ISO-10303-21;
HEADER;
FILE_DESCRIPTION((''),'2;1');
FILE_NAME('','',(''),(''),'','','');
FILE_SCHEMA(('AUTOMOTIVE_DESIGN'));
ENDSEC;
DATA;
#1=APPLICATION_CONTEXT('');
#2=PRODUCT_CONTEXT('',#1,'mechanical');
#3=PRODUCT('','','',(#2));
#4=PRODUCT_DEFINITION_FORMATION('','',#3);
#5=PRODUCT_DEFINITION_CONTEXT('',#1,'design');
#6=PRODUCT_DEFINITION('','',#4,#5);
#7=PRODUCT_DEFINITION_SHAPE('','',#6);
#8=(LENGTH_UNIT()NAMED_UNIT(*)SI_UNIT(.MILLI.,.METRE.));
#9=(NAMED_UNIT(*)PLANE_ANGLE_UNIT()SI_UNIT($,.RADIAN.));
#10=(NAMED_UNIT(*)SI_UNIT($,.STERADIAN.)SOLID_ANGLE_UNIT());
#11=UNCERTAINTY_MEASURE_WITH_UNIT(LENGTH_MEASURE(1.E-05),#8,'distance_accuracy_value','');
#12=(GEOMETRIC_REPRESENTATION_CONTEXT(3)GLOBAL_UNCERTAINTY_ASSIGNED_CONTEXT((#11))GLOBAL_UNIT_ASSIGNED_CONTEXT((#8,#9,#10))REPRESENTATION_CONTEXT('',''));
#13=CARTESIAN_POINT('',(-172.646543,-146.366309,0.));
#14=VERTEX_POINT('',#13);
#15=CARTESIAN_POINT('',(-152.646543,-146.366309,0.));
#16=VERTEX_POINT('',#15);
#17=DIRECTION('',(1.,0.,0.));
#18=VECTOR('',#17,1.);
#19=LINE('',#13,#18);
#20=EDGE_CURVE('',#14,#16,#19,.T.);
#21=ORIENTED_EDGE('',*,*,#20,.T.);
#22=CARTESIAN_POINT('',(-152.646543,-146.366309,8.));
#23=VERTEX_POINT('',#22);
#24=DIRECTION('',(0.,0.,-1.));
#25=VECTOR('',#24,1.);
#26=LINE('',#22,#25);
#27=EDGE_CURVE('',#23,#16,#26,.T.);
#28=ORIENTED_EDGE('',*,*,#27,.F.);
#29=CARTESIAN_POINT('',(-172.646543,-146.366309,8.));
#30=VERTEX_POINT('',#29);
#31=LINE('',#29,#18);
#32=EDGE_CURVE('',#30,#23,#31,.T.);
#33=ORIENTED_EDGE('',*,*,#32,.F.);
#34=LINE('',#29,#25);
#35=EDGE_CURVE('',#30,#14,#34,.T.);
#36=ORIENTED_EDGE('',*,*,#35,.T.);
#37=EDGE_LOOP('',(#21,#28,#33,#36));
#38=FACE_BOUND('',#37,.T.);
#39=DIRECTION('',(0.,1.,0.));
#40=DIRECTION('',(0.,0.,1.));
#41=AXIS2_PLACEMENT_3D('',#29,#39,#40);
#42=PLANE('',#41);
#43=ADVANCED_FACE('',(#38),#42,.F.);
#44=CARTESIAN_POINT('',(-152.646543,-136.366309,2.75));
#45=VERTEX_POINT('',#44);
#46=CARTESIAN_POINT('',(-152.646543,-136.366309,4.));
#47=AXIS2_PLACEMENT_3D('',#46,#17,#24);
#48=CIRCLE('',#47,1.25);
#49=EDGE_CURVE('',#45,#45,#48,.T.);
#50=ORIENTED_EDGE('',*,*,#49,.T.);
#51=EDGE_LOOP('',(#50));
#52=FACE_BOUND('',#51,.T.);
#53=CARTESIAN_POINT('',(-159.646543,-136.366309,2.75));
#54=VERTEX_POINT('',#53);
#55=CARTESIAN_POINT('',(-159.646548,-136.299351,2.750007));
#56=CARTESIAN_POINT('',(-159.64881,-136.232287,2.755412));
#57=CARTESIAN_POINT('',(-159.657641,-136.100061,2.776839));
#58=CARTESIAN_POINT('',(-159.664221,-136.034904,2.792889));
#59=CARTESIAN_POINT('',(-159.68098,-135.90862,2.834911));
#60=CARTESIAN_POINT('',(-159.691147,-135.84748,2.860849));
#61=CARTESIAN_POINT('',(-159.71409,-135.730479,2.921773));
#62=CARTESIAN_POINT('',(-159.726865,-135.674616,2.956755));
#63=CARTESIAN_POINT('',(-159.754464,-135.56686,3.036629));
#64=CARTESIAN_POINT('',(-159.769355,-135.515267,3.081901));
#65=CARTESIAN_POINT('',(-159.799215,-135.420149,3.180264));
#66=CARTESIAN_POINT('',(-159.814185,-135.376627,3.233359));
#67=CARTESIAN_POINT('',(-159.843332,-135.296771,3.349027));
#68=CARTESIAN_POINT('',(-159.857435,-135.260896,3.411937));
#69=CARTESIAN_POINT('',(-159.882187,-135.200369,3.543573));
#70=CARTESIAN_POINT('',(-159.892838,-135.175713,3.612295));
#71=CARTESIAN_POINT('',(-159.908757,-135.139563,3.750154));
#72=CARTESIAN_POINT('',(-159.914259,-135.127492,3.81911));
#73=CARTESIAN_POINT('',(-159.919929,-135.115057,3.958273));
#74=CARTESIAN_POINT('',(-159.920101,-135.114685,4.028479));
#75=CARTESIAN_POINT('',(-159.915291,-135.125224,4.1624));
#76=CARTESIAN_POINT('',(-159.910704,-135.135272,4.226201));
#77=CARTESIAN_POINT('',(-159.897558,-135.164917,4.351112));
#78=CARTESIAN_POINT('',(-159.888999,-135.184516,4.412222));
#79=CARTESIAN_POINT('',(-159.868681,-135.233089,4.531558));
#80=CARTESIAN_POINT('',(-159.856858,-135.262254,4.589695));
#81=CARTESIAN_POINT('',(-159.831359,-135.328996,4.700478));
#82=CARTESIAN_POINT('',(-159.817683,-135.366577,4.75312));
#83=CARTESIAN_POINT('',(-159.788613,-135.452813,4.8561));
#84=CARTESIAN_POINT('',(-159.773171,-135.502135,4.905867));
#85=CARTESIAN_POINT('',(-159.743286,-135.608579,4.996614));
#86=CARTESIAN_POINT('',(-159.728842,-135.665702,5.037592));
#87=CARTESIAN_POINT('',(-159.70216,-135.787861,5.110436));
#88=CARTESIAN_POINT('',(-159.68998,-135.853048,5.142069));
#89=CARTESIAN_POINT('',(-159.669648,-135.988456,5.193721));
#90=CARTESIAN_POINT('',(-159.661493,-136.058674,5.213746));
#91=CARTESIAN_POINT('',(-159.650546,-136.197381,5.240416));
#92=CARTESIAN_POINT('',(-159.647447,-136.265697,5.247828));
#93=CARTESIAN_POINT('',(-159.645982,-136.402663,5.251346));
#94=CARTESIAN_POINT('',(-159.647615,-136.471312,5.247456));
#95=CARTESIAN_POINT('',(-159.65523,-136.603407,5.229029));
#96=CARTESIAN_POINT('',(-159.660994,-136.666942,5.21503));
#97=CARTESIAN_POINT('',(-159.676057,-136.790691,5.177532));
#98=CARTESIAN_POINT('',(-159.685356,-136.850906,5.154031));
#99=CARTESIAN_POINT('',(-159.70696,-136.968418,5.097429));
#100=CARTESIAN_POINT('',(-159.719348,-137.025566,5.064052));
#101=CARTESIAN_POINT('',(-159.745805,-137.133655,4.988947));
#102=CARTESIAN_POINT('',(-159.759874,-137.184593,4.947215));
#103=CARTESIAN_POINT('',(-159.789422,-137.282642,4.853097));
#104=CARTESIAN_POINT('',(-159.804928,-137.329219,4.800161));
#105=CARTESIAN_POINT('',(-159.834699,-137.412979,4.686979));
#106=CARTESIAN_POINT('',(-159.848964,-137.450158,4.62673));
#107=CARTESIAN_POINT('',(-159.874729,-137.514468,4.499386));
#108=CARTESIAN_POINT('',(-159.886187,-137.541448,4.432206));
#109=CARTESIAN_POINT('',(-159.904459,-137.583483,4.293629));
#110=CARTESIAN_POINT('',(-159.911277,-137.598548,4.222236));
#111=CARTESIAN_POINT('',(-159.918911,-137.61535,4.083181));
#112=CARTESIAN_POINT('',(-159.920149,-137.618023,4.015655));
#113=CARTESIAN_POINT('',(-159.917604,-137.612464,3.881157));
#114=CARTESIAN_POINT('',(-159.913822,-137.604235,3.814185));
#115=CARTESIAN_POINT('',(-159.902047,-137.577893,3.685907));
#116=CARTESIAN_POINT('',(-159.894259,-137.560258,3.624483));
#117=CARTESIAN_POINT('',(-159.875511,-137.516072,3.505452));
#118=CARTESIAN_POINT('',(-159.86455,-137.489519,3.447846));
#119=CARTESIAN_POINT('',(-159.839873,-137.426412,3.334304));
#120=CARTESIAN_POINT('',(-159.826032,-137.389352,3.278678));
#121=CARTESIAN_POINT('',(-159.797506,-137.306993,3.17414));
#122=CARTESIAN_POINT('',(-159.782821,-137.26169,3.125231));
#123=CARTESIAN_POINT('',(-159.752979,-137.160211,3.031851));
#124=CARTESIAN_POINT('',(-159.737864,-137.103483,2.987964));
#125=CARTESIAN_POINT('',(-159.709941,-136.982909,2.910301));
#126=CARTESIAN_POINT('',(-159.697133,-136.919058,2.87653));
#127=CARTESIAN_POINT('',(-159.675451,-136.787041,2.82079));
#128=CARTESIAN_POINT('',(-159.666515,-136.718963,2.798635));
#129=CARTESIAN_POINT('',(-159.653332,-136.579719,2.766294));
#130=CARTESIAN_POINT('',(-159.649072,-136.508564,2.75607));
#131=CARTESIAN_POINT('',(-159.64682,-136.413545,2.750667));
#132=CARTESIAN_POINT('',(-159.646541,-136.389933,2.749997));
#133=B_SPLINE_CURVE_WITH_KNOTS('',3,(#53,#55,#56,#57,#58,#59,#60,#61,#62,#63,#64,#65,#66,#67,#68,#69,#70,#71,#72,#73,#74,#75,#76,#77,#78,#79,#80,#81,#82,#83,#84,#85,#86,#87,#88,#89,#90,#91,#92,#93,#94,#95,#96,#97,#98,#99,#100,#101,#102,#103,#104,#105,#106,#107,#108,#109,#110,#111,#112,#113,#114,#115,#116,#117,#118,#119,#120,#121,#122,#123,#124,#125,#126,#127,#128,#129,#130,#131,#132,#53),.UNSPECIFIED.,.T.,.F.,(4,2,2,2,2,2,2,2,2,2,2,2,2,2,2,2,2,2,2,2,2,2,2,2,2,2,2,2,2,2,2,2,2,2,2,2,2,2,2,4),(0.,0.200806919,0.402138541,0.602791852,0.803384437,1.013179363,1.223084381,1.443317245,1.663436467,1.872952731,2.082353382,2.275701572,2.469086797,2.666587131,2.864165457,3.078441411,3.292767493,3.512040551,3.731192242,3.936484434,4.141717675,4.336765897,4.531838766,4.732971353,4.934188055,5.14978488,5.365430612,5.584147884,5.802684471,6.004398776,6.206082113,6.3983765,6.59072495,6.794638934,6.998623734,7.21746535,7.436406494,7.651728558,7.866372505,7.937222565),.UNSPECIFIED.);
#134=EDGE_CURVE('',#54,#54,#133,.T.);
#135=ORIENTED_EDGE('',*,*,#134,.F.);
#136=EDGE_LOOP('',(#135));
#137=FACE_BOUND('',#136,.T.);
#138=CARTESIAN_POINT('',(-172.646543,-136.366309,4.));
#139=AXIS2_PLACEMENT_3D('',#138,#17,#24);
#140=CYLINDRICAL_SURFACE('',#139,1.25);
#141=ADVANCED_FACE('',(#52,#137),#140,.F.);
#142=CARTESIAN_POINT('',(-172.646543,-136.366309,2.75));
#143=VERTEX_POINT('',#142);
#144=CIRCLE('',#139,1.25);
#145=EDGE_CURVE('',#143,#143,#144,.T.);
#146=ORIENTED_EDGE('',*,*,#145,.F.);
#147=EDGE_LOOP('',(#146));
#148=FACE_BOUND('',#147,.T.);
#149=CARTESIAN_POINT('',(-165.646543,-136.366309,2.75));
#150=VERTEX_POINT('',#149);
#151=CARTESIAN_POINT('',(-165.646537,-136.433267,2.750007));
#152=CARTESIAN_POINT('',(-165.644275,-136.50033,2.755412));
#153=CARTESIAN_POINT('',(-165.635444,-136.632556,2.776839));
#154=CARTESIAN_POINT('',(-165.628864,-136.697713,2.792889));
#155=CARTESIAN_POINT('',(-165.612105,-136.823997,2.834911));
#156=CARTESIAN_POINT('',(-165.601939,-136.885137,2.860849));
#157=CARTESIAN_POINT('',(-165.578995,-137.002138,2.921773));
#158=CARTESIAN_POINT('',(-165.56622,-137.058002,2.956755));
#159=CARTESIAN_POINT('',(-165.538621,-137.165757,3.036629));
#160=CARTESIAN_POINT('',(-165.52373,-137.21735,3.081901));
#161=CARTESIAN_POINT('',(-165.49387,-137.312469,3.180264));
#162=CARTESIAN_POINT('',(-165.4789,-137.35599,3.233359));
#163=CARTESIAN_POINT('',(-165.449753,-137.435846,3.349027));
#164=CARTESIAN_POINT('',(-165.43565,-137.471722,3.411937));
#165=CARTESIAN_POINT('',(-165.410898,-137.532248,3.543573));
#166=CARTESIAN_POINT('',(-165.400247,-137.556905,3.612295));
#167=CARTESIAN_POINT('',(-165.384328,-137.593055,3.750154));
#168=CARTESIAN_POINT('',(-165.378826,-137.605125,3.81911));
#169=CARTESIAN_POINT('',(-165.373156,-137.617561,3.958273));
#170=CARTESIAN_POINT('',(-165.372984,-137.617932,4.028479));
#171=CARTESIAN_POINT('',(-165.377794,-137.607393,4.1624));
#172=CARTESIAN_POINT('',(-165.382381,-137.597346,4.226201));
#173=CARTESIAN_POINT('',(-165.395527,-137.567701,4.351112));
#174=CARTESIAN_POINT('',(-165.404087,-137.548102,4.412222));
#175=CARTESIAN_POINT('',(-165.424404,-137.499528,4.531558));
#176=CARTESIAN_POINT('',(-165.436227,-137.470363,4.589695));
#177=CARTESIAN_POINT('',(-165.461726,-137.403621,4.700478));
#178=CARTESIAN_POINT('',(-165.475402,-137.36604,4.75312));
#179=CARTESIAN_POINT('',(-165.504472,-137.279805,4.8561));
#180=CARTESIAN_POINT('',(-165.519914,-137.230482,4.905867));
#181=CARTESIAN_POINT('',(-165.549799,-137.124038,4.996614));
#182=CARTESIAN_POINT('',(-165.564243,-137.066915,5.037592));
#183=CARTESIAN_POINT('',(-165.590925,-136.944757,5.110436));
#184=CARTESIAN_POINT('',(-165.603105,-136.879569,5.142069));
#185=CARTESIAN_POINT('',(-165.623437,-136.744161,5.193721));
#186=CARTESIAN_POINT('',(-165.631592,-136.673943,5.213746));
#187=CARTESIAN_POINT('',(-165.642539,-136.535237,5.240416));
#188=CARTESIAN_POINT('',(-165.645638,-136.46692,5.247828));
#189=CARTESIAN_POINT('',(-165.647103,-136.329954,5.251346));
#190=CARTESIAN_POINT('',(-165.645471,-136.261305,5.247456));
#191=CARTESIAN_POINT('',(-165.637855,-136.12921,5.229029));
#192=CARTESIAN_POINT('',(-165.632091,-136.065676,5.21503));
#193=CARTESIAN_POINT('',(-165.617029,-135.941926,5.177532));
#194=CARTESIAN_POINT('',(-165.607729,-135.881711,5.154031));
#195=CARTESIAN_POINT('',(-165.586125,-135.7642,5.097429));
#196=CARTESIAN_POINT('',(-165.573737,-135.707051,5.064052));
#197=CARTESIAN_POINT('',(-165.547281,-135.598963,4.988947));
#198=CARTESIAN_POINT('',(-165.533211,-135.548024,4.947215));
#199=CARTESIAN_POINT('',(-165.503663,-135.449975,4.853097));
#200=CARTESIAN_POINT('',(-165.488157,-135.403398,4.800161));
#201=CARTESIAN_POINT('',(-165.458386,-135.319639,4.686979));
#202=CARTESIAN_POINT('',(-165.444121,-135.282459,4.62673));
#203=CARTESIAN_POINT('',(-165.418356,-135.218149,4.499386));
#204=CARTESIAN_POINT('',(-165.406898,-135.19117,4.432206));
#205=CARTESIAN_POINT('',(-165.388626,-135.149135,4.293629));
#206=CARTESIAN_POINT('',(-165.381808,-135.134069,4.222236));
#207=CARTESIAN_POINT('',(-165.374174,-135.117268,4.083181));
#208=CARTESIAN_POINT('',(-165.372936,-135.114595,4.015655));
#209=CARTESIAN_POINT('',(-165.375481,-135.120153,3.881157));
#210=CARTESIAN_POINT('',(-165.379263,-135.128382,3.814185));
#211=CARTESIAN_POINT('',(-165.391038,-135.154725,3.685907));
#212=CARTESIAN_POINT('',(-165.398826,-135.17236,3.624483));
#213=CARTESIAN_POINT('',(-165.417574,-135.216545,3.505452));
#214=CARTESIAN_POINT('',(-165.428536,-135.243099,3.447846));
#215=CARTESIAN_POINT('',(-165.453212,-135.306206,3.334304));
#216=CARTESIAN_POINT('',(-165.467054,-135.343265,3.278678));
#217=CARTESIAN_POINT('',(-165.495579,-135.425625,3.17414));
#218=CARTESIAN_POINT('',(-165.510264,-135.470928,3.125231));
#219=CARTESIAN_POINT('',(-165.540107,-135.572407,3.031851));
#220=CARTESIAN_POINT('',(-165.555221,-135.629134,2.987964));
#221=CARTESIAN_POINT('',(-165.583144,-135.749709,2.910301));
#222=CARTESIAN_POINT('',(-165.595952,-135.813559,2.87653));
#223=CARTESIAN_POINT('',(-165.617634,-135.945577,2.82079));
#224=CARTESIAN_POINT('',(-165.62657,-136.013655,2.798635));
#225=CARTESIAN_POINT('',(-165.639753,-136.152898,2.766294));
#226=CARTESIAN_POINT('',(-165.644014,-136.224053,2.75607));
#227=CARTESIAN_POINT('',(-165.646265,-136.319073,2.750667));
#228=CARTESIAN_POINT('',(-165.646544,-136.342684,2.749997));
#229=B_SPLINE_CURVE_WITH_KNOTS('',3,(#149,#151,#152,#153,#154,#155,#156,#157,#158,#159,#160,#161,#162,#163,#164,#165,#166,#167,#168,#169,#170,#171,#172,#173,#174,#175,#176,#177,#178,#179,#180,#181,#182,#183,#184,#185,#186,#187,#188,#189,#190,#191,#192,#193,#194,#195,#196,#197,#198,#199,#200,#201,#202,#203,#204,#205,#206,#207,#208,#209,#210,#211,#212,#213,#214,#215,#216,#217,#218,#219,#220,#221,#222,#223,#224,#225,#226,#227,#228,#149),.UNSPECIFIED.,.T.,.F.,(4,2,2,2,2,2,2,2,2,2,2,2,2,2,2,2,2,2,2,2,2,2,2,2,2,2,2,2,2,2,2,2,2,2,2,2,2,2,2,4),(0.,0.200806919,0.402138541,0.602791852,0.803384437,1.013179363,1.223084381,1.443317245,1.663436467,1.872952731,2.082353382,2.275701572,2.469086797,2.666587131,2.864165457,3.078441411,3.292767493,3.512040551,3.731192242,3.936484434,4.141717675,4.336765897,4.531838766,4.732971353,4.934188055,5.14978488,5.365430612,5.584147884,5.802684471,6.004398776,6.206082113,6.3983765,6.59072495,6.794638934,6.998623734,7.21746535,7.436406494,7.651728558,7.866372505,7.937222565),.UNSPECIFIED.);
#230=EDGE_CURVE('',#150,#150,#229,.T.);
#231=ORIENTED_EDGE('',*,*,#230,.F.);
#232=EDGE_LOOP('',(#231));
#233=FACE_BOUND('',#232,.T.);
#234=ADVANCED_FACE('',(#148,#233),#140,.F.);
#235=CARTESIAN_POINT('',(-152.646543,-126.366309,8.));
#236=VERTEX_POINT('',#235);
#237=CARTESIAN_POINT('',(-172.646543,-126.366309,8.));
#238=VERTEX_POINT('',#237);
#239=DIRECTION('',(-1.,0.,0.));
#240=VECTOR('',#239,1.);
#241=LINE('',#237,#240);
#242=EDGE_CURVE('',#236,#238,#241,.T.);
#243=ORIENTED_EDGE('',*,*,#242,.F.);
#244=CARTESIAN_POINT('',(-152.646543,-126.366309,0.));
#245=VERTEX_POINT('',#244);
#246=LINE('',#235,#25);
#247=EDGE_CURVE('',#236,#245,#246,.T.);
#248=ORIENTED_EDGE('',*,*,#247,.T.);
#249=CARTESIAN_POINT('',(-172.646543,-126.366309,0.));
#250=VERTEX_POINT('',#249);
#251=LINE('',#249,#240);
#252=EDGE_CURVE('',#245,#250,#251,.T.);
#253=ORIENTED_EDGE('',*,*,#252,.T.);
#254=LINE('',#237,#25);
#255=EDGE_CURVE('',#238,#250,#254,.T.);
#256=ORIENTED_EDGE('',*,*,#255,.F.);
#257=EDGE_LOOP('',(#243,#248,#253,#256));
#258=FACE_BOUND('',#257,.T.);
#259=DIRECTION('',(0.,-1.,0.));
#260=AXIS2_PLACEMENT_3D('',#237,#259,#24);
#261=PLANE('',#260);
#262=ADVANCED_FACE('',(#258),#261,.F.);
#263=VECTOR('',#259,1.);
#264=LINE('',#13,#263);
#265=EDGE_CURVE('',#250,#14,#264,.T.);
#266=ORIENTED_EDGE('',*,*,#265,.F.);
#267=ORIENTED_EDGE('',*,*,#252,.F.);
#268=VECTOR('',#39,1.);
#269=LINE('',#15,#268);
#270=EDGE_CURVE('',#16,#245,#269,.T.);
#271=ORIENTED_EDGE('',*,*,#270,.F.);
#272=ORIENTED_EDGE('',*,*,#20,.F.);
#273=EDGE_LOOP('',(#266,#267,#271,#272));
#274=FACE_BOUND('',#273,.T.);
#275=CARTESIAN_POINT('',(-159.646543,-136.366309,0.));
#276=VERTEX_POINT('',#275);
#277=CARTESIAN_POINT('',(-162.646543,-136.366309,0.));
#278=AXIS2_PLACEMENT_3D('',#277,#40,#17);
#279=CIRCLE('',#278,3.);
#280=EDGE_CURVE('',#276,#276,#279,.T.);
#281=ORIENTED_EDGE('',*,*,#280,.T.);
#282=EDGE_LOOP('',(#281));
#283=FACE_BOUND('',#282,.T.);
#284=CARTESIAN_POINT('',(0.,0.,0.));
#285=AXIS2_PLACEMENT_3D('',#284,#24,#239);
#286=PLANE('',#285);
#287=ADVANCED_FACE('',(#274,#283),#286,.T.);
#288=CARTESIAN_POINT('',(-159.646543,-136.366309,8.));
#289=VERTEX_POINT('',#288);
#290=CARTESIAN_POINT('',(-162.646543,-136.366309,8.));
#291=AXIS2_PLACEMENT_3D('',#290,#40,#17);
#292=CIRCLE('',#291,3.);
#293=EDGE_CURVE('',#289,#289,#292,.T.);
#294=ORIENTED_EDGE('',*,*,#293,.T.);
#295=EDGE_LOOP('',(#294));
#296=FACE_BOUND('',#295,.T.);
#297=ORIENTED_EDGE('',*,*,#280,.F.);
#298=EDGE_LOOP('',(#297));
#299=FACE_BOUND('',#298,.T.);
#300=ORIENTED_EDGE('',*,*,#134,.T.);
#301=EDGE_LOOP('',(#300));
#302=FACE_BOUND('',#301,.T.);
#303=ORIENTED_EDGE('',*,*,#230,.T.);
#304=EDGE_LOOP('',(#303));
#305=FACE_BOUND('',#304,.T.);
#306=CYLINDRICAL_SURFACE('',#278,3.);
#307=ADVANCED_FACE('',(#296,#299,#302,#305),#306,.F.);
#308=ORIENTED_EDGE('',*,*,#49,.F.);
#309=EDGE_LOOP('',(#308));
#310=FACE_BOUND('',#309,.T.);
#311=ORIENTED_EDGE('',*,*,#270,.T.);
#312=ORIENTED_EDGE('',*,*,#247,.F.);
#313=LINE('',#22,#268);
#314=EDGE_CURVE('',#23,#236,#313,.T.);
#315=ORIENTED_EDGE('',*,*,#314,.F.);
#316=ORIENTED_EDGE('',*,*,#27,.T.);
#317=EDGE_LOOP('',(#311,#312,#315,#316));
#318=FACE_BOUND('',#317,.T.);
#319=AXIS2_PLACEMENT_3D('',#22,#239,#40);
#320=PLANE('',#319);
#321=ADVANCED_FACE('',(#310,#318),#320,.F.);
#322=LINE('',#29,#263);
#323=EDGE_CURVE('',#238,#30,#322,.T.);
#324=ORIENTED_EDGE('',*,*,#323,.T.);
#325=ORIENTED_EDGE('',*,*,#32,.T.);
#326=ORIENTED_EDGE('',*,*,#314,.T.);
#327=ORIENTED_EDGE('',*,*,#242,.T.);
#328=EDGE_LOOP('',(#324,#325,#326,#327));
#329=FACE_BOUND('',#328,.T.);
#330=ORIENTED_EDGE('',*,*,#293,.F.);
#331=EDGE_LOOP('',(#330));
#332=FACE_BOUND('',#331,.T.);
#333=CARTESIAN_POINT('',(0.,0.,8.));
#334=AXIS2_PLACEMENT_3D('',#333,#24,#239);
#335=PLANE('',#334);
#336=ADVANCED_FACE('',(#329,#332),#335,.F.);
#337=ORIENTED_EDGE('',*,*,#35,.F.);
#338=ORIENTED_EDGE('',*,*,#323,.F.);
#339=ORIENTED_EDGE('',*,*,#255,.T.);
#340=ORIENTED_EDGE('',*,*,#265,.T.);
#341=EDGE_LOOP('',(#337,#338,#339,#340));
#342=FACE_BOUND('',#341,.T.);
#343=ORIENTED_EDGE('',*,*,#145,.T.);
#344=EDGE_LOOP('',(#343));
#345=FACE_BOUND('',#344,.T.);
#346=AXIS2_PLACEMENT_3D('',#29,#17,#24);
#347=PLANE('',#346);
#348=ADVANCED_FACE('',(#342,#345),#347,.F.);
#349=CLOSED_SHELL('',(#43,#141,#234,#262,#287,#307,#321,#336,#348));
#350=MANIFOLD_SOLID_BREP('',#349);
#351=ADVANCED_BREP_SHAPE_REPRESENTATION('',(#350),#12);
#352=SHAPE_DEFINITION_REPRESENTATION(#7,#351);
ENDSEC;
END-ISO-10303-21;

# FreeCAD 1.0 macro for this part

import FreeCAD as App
import Part
import Sketcher
Q = App.Units.Quantity

doc = App.newDocument("Part")
body = doc.addObject("PartDesign::Body", "Body")

# Sketch on XY plane
sketch1 = body.newObject("Sketcher::SketchObject", "Sketch")
sketch1.AttachmentSupport = (doc.getObject("XY_Plane"), [""])
sketch1.MapMode = "FlatFace"
sketch1.addGeometry(Part.LineSegment(App.Vector(-173, -126, 0), App.Vector(-173, -146, 0)), False)
sketch1.addGeometry(Part.LineSegment(App.Vector(-173, -146, 0), App.Vector(-153, -146, 0)), False)
sketch1.addGeometry(Part.LineSegment(App.Vector(-153, -146, 0), App.Vector(-153, -126, 0)), False)
sketch1.addGeometry(Part.LineSegment(App.Vector(-153, -126, 0), App.Vector(-173, -126, 0)), False)
sketch1.addConstraint(Sketcher.Constraint("Coincident", 0, 2, 1, 1))
sketch1.addConstraint(Sketcher.Constraint("Coincident", 1, 2, 2, 1))
sketch1.addConstraint(Sketcher.Constraint("Coincident", 2, 2, 3, 1))
sketch1.addConstraint(Sketcher.Constraint("Coincident", 3, 2, 0, 1))
sketch1.addConstraint(Sketcher.Constraint("Vertical", 0))
sketch1.addConstraint(Sketcher.Constraint("Horizontal", 1))
sketch1.addConstraint(Sketcher.Constraint("Vertical", 2))
sketch1.addConstraint(Sketcher.Constraint("Horizontal", 3))
sketch1.addConstraint(Sketcher.Constraint("Equal", 3, 0))
sketch1.addConstraint(Sketcher.Constraint("DistanceX", 1, 1, 1, 2, Q("20 mm")))
sketch1.addConstraint(Sketcher.Constraint("DistanceY", 0, 2, -1, 1, Q("146.366309 mm")))
sketch1.addConstraint(Sketcher.Constraint("DistanceX", 0, 2, -1, 1, Q("172.646543 mm")))
pad1 = body.newObject("PartDesign::Pad", "Pad")
pad1.Profile = sketch1
pad1.Length = 8

# Sketch on XY plane
sketch2 = body.newObject("Sketcher::SketchObject", "Sketch001")
sketch2.AttachmentSupport = (doc.getObject("XY_Plane"), [""])
sketch2.MapMode = "FlatFace"
sketch2.AttachmentOffset = App.Placement(App.Vector(0, 0, 8), App.Rotation())
sketch2.addGeometry(Part.Circle(App.Vector(-162.6, -136.4, 0), App.Vector(0, 0, 1), 3), False)
sketch2.addConstraint(Sketcher.Constraint("Diameter", 0, Q("6 mm")))
sketch2.addConstraint(Sketcher.Constraint("DistanceY", 0, 3, -1, 1, Q("136.366309 mm")))
sketch2.addConstraint(Sketcher.Constraint("DistanceX", 0, 3, -1, 1, Q("162.646543 mm")))
pocket1 = body.newObject("PartDesign::Pocket", "Pocket")
pocket1.Profile = sketch2
pocket1.Type = "ThroughAll"

# Sketch on YZ plane
sketch3 = body.newObject("Sketcher::SketchObject", "Sketch002")
sketch3.AttachmentSupport = (doc.getObject("YZ_Plane"), [""])
sketch3.MapMode = "FlatFace"
sketch3.AttachmentOffset = App.Placement(App.Vector(0, 0, -152.646543), App.Rotation())
sketch3.addGeometry(Part.Circle(App.Vector(-136.4, 4, 0), App.Vector(0, 0, 1), 1.2), False)
sketch3.addConstraint(Sketcher.Constraint("Diameter", 0, Q("2.5 mm")))
sketch3.addConstraint(Sketcher.Constraint("DistanceY", -1, 1, 0, 3, Q("4 mm")))
sketch3.addConstraint(Sketcher.Constraint("DistanceX", 0, 3, -1, 1, Q("136.366309 mm")))
pocket2 = body.newObject("PartDesign::Pocket", "Pocket001")
pocket2.Profile = sketch3
pocket2.Type = "ThroughAll"

doc.recompute()
